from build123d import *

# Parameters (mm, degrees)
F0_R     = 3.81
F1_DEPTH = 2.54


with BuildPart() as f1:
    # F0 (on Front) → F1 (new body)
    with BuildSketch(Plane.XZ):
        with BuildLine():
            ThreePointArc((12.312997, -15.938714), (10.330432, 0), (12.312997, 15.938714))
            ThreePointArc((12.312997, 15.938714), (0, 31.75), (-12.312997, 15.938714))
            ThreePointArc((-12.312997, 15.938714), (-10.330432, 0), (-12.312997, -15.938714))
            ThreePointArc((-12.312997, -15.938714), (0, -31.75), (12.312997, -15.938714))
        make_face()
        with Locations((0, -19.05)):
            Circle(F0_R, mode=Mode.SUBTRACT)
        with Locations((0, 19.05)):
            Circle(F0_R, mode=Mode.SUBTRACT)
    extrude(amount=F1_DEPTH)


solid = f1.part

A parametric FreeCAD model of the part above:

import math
import FreeCAD as App
import Part
import Sketcher

V = App.Vector
Q = App.Units.Quantity

doc = App.newDocument("Part")
body = doc.addObject("PartDesign::Body", "Body")

sketch1 = body.newObject("Sketcher::SketchObject", "Sketch")
sketch1.AttachmentSupport = (doc.getObject("XZ_Plane"), [""])
sketch1.MapMode = "FlatFace"
sketch1.addGeometry(Part.ArcOfCircle(Part.Circle(V(75.4, 0, 0), V(0, 0, 1), 65.1), math.radians(166), math.radians(194)), False)
sketch1.addGeometry(Part.ArcOfCircle(Part.Circle(V(0, 19.1, 0), V(0, 0, 1), 12.7), math.radians(-14), math.radians(194)), False)
sketch1.addGeometry(Part.ArcOfCircle(Part.Circle(V(-75.4, 0, 0), V(0, 0, 1), 65.1), math.radians(-14), math.radians(14)), False)
sketch1.addGeometry(Part.ArcOfCircle(Part.Circle(V(0, -19.1, 0), V(0, 0, 1), 12.7), math.radians(166), math.radians(374)), False)
sketch1.addGeometry(Part.Circle(V(0, -19.1, 0), V(0, 0, 1), 3.8), False)
sketch1.addGeometry(Part.Circle(V(0, 19.1, 0), V(0, 0, 1), 3.8), False)
sketch1.addConstraint(Sketcher.Constraint("Tangent", 0, 1, 1, 1))
sketch1.addConstraint(Sketcher.Constraint("Tangent", 1, 2, 2, 2))
sketch1.addConstraint(Sketcher.Constraint("Tangent", 2, 1, 3, 1))
sketch1.addConstraint(Sketcher.Constraint("Tangent", 3, 2, 0, 2))
sketch1.addConstraint(Sketcher.Constraint("Coincident", 4, 3, 3, 3))
sketch1.addConstraint(Sketcher.Constraint("Coincident", 5, 3, 1, 3))
sketch1.addConstraint(Sketcher.Constraint("Equal", 0, 2))
sketch1.addConstraint(Sketcher.Constraint("Equal", 1, 3))
sketch1.addConstraint(Sketcher.Constraint("Equal", 4, 5))
sketch1.addConstraint(Sketcher.Constraint("Symmetric", 0, 3, 2, 3, -1, 1))
sketch1.addConstraint(Sketcher.Constraint("PointOnObject", 0, 3, -1))
sketch1.addConstraint(Sketcher.Constraint("Diameter", 4, Q("0.3 in")))
sketch1.addConstraint(Sketcher.Constraint("Radius", 1, Q("0.5 in")))
sketch1.addConstraint(Sketcher.Constraint("DistanceY", 3, 3, 1, 3, Q("1.5 in")))
sketch1.addConstraint(Sketcher.Constraint("Radius", 0, 65.060457))
pad1 = body.newObject("PartDesign::Pad", "Pad")
pad1.Profile = sketch1
pad1.Length = Q("0.1 in")

doc.recompute()
